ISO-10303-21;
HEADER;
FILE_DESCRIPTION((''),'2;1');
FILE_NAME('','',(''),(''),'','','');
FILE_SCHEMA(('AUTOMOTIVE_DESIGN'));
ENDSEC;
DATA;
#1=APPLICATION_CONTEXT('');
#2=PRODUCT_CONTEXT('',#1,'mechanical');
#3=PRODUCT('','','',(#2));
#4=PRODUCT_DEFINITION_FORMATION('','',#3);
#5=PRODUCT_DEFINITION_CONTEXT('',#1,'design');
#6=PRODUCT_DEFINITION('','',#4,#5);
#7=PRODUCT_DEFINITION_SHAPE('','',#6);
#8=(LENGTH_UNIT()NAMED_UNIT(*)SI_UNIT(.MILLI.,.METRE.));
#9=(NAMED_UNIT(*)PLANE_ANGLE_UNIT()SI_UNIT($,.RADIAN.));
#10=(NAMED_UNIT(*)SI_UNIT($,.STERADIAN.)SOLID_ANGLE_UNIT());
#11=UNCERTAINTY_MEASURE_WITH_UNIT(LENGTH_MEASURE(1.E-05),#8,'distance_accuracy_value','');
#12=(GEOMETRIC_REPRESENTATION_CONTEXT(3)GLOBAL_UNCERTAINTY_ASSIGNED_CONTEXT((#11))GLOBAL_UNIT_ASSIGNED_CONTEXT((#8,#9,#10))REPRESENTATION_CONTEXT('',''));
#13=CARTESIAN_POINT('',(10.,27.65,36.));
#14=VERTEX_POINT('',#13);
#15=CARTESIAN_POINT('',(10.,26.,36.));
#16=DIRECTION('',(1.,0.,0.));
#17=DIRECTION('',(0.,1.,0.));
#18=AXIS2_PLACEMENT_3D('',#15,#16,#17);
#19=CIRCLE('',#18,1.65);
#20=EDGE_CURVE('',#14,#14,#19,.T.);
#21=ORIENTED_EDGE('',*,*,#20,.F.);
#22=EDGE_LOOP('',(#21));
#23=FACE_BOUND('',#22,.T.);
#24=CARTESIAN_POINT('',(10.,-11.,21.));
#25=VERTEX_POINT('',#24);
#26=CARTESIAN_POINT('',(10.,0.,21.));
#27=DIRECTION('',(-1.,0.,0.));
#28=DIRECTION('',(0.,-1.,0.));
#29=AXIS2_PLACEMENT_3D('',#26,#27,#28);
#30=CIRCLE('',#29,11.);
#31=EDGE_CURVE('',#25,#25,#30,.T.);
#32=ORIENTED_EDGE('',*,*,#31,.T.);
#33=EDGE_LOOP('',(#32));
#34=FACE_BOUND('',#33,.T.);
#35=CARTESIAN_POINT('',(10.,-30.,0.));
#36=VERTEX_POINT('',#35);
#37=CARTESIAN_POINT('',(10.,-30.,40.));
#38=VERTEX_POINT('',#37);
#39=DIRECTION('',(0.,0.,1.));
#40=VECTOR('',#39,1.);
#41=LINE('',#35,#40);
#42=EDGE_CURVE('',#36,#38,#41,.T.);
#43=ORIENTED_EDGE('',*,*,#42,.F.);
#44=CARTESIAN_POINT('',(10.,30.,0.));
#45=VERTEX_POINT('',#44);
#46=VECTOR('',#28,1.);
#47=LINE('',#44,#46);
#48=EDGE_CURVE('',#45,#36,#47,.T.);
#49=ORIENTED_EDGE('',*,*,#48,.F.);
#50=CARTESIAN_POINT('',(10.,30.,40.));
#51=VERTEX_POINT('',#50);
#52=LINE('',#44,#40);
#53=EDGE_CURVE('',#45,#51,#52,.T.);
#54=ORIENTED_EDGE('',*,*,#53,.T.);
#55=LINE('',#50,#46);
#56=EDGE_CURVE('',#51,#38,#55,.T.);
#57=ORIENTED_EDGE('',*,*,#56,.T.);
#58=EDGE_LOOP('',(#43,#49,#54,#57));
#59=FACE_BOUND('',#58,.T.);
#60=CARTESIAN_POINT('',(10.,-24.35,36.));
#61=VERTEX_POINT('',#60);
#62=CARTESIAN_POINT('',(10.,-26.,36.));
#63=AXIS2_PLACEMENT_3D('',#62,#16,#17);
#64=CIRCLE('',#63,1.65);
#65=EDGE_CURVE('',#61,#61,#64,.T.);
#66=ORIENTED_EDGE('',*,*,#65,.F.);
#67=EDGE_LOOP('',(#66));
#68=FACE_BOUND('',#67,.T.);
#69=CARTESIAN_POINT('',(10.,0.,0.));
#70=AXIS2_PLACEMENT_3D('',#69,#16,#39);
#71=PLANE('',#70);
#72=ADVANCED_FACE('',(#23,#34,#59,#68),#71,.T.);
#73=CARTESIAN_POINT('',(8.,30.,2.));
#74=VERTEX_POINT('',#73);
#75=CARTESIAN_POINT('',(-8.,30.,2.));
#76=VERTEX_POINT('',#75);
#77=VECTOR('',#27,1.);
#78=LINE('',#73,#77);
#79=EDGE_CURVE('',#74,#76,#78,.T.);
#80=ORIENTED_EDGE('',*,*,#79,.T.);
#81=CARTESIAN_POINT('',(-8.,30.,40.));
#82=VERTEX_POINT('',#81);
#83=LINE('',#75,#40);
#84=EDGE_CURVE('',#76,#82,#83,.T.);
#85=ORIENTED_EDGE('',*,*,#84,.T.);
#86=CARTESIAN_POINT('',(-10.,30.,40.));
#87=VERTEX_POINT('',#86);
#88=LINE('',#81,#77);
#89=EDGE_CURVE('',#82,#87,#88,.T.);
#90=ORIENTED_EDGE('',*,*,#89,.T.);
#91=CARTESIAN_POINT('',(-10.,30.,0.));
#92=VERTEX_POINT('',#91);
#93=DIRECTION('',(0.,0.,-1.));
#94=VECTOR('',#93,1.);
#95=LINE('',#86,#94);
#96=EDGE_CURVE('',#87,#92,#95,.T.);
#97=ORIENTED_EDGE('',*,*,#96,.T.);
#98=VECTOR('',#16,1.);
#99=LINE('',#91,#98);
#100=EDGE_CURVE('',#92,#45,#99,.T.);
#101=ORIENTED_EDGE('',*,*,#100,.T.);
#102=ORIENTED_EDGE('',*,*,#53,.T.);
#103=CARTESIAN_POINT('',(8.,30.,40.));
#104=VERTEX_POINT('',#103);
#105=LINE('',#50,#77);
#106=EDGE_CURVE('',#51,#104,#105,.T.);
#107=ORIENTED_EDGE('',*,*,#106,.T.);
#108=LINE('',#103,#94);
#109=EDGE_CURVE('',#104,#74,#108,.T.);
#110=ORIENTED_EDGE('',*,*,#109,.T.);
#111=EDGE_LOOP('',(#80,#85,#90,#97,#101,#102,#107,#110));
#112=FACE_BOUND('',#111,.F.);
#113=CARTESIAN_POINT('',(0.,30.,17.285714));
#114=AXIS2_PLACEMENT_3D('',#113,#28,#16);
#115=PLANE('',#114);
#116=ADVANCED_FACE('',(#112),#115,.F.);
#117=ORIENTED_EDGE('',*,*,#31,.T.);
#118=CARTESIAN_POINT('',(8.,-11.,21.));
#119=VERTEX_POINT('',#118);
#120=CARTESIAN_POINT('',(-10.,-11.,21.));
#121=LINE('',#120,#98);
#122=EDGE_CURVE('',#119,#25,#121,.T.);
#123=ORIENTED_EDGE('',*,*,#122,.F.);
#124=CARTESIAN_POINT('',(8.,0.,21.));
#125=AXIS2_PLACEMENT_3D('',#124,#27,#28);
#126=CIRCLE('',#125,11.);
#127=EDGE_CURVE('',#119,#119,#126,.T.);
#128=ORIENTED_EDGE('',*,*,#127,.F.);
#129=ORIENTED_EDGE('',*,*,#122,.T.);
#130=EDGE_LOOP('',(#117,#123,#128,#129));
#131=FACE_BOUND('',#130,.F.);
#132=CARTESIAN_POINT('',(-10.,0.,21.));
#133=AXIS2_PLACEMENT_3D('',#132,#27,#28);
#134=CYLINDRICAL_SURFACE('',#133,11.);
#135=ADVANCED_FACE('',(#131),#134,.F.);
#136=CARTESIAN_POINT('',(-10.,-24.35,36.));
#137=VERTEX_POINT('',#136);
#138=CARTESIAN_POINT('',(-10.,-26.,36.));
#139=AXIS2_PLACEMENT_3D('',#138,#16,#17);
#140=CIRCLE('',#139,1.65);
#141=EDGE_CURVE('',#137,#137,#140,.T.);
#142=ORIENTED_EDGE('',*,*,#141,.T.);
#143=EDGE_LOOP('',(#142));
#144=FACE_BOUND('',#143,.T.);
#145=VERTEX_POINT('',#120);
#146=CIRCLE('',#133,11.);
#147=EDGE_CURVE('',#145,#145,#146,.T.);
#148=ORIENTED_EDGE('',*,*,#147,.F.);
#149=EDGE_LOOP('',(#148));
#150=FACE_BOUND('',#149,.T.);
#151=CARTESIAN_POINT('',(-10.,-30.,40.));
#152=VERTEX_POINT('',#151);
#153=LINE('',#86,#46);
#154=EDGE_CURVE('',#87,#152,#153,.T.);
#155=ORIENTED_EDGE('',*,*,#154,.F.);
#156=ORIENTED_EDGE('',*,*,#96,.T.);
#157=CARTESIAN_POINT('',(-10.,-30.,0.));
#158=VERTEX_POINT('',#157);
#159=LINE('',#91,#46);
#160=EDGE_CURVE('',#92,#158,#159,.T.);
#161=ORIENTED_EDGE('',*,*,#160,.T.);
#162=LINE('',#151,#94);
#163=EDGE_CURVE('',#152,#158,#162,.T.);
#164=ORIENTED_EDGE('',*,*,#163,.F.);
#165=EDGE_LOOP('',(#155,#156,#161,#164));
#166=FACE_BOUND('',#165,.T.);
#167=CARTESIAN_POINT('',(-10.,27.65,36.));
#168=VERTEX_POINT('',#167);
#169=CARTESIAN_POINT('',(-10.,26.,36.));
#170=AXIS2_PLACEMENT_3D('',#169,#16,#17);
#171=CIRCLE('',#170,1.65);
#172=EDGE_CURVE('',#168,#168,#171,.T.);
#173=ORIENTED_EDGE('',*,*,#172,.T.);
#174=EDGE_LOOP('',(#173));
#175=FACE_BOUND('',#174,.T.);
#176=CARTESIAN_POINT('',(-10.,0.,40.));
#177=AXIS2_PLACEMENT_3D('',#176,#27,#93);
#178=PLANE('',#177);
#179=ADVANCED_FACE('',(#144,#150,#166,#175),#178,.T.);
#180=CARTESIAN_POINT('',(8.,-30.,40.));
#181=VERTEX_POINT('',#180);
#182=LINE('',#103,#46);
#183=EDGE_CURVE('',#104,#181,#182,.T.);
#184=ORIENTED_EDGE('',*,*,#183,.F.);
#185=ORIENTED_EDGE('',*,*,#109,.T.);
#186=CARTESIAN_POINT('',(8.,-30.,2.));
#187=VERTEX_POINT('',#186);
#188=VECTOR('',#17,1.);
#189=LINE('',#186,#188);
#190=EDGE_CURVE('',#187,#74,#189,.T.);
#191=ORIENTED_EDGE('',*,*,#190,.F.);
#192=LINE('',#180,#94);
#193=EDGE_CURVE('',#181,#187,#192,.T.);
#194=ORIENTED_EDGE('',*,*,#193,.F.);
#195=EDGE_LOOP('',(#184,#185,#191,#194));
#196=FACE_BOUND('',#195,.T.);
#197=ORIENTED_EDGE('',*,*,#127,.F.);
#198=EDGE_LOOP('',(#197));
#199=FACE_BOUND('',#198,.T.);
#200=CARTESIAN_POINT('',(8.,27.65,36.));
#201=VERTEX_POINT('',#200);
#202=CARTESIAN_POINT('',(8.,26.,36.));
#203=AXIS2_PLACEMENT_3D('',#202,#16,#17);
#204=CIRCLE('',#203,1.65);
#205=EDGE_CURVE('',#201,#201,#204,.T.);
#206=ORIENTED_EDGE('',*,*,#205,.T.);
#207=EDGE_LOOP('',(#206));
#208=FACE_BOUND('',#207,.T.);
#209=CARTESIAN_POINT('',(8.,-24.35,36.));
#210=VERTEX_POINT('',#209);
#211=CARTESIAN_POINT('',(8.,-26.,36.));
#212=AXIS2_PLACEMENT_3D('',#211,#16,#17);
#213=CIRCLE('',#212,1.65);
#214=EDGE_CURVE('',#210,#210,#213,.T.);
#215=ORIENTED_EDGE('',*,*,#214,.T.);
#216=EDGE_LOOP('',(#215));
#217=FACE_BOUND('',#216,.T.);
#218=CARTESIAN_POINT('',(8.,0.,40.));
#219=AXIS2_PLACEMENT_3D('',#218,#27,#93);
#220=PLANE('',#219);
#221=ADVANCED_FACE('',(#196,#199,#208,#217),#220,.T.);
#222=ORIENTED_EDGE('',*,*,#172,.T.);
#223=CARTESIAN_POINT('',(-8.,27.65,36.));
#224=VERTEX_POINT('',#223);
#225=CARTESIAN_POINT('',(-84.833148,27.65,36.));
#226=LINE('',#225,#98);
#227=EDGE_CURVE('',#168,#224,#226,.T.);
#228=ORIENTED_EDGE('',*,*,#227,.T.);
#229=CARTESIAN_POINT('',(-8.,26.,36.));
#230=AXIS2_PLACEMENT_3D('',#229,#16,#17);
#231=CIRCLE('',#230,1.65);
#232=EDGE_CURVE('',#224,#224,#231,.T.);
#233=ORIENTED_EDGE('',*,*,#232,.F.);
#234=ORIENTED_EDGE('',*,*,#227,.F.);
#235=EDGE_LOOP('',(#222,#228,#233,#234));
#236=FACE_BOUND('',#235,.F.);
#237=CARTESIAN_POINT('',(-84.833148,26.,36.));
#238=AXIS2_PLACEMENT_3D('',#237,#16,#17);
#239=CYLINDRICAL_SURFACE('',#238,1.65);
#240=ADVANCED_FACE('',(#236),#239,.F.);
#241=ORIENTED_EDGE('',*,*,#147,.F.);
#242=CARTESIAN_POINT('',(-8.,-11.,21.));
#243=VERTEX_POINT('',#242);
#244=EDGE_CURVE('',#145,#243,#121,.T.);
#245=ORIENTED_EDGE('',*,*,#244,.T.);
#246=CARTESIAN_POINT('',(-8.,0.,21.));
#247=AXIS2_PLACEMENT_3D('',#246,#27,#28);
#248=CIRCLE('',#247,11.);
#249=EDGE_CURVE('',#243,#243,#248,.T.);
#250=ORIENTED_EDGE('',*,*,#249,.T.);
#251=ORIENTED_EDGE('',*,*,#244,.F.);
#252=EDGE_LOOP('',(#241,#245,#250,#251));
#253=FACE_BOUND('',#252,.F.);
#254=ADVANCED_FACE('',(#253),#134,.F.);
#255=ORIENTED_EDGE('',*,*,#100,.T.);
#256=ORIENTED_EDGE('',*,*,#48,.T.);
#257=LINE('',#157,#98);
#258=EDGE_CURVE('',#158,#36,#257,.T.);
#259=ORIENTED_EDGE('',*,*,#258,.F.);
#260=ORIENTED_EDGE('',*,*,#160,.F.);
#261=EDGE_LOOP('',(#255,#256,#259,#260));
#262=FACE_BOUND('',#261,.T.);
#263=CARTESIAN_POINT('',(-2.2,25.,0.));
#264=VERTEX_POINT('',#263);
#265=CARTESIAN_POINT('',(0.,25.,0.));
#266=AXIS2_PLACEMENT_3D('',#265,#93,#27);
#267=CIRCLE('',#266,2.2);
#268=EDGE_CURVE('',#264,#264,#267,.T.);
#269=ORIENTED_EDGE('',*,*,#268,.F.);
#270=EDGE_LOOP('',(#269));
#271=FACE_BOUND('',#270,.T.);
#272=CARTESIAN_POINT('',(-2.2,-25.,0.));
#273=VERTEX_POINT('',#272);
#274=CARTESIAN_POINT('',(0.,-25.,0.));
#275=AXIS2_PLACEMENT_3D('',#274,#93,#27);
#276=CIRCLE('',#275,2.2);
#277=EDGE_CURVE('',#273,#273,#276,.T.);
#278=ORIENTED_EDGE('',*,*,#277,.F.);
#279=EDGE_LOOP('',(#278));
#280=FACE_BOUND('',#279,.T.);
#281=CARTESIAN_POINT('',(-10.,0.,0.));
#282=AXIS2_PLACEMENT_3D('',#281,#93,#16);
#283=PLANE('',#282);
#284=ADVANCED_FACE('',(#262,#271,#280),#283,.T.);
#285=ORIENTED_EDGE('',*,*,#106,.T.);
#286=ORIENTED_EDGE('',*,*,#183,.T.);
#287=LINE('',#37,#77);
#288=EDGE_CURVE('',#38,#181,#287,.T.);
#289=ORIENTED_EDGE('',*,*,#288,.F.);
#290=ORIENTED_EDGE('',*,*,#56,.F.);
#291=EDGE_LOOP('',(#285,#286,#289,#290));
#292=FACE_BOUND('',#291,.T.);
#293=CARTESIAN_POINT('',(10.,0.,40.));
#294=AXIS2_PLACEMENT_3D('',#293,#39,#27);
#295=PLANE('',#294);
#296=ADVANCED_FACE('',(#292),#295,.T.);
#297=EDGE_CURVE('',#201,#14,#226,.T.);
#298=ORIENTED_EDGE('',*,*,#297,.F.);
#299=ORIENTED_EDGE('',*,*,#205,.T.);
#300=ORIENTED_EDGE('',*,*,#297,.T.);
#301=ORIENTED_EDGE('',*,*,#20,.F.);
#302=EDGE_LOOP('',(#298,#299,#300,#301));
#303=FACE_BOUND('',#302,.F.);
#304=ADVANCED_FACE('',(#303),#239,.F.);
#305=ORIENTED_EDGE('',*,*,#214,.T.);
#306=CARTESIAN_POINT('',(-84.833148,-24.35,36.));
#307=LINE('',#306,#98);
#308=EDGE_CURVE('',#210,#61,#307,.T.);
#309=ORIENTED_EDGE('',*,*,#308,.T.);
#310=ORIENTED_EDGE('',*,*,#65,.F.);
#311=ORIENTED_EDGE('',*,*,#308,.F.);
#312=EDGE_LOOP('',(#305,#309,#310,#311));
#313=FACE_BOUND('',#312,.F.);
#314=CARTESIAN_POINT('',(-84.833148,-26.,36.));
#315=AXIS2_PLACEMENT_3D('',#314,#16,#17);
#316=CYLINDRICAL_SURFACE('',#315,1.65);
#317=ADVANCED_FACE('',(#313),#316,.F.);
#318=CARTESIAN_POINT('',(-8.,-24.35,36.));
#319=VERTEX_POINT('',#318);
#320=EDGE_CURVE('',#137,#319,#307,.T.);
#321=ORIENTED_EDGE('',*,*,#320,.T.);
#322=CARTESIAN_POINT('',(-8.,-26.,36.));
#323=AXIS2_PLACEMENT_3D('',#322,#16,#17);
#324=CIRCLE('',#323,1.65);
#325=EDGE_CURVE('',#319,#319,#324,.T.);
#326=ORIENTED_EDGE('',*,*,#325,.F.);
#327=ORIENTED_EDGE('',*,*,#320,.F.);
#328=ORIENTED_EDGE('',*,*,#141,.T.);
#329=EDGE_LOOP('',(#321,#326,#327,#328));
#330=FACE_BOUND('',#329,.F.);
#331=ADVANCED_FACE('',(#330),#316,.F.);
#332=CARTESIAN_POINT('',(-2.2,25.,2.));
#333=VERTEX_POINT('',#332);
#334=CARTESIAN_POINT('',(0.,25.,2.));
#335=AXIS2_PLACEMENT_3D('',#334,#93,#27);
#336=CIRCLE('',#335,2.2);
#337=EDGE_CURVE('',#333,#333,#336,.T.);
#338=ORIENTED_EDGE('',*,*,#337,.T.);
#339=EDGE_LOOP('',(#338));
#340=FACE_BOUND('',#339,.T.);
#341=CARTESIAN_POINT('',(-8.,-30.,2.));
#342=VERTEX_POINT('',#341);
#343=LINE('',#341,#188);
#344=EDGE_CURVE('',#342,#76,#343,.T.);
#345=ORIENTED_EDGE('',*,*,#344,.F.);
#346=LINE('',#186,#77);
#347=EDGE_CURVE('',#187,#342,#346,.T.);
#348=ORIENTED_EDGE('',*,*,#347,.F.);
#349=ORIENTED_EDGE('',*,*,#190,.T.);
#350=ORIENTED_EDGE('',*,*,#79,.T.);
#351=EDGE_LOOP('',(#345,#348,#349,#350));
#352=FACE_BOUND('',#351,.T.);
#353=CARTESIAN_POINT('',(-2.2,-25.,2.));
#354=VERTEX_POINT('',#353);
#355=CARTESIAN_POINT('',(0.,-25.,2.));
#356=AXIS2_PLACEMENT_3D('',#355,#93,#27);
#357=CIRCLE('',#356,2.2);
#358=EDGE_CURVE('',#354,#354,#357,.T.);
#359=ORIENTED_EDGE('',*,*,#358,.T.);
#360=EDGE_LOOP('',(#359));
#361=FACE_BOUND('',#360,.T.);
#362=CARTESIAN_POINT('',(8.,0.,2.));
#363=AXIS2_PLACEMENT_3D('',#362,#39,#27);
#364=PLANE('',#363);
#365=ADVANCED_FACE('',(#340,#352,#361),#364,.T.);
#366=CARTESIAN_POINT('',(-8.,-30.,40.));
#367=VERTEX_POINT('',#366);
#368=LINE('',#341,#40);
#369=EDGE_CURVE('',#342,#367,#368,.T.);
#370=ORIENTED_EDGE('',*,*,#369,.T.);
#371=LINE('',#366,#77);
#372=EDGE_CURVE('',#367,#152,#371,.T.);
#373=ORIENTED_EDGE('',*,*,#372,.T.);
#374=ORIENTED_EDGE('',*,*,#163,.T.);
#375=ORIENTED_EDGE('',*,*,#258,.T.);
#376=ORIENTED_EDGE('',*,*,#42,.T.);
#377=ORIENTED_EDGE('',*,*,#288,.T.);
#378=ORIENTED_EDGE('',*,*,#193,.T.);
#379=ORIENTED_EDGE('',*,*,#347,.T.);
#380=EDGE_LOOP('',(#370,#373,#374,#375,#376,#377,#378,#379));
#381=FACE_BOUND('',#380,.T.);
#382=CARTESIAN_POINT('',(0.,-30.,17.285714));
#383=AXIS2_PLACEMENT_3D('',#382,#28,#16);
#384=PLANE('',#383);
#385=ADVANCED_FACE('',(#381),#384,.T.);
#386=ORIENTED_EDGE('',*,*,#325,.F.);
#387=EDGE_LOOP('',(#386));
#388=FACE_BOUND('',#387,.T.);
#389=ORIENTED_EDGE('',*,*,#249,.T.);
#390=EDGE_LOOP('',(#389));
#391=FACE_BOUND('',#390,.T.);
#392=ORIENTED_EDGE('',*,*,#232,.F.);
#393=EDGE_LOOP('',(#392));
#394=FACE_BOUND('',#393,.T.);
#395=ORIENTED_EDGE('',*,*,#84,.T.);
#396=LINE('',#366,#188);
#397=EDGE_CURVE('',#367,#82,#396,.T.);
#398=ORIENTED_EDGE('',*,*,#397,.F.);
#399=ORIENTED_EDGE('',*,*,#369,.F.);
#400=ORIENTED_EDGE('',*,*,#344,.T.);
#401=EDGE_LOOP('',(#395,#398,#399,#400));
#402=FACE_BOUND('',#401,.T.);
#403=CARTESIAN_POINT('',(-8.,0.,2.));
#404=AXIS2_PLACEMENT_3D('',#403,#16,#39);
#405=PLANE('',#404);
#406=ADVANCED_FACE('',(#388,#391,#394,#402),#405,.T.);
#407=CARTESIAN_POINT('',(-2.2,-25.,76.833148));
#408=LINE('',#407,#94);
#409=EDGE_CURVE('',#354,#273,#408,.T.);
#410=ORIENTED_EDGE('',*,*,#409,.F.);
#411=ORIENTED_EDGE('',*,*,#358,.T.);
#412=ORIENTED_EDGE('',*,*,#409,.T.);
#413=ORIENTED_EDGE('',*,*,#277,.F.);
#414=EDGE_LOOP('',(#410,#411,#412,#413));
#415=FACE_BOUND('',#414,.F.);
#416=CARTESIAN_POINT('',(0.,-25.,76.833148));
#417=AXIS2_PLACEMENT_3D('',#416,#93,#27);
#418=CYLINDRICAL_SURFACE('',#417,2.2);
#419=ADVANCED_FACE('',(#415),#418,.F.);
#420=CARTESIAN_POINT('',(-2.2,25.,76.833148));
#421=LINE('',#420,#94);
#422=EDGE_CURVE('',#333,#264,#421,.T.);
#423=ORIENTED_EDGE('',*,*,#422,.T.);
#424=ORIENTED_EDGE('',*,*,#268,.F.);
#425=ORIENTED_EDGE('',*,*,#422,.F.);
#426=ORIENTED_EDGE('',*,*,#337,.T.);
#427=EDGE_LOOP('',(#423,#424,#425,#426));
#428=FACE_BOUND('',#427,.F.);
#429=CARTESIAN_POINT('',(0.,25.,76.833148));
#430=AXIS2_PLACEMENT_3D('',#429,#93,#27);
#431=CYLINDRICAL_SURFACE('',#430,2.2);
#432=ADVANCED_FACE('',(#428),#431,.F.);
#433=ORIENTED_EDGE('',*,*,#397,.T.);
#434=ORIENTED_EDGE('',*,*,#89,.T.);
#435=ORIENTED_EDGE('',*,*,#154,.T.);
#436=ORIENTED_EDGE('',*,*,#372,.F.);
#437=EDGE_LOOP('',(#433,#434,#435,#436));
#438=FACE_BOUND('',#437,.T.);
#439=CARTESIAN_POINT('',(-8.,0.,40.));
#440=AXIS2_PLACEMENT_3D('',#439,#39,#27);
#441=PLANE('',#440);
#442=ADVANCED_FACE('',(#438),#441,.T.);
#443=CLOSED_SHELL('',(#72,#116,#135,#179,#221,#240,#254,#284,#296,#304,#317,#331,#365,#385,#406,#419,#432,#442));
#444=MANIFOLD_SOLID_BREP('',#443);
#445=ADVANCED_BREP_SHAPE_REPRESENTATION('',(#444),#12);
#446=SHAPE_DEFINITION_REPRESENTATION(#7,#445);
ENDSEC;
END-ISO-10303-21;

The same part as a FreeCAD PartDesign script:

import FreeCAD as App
import Part
import Sketcher
Q = App.Units.Quantity


def add_polygon(sketch, points):
    """Adds a closed chain of lines whose ends are joined by coincident constraints."""
    first, n = sketch.GeometryCount, len(points)
    for a, b in zip(points, points[1:] + points[:1]):
        sketch.addGeometry(Part.LineSegment(App.Vector(*a, 0), App.Vector(*b, 0)), False)
    for i in range(n):
        sketch.addConstraint(Sketcher.Constraint("Coincident", first + i, 2, first + (i + 1) % n, 1))

doc = App.newDocument("Part")
params = doc.addObject("Spreadsheet::Sheet", "Params")
for row, (alias, value) in enumerate([
    ("sketch1_width", "2 mm"),
    ("sketch1_width2", "20 mm"),
    ("sketch1_height", "40 mm"),
    ("sketch1_height2", "38 mm"),
    ("pad1_length", "60 mm"),
    ("sketch2_diameter", "22 mm"),
    ("sketch3_diameter", "4.4 mm"),
    ("hole_diameter", "4.4 mm"),
    ("sketch4_diameter", "3.3 mm"),
    ("hole2_diameter", "3.3 mm"),
], start=1):
    params.set(f"A{row}", alias)
    params.set(f"B{row}", "=" + value)
    params.setAlias(f"B{row}", alias)

body = doc.addObject("PartDesign::Body", "Body")

# Sketch on XZ plane
sketch1 = doc.addObject("Sketcher::SketchObject", "Sketch")
body.addObject(sketch1)
sketch1.AttachmentSupport = (doc.XZ_Plane, [""])
sketch1.MapMode = "FlatFace"
add_polygon(sketch1, [(-8, 40), (-10, 40), (-10, 0), (10, 0), (10, 40), (8, 40), (8, 2), (-8, 2)])  # lines 0-7
sketch1.addConstraint(Sketcher.Constraint("Horizontal", 0))
sketch1.addConstraint(Sketcher.Constraint("Vertical", 1))
sketch1.addConstraint(Sketcher.Constraint("Horizontal", 2))
sketch1.addConstraint(Sketcher.Constraint("Vertical", 3))
sketch1.addConstraint(Sketcher.Constraint("Horizontal", 4))
sketch1.addConstraint(Sketcher.Constraint("Vertical", 5))
sketch1.addConstraint(Sketcher.Constraint("Horizontal", 6))
sketch1.addConstraint(Sketcher.Constraint("Vertical", 7))
sketch1.addConstraint(Sketcher.Constraint("Symmetric", 1, 2, 2, 2, -1, 1))
sketch1.addConstraint(Sketcher.Constraint("Symmetric", 4, 2, 7, 2, -2))
sketch1.addConstraint(Sketcher.Constraint("DistanceX", 0, 2, 0, 1, Q("2 mm")))
sketch1.addConstraint(Sketcher.Constraint("DistanceX", 2, 1, 2, 2, Q("20 mm")))
sketch1.addConstraint(Sketcher.Constraint("DistanceY", 1, 2, 1, 1, Q("40 mm")))
sketch1.addConstraint(Sketcher.Constraint("DistanceY", 5, 2, 5, 1, Q("38 mm")))
sketch1.setExpression("Constraints[18]", "Params.sketch1_width")
sketch1.setExpression("Constraints[19]", "Params.sketch1_width2")
sketch1.setExpression("Constraints[20]", "Params.sketch1_height")
sketch1.setExpression("Constraints[21]", "Params.sketch1_height2")
pad1 = doc.addObject("PartDesign::Pad", "Pad")
body.addObject(pad1)
pad1.Profile = sketch1
pad1.setExpression("Length", "Params.pad1_length")
pad1.Midplane = True

# Sketch on YZ plane
sketch2 = doc.addObject("Sketcher::SketchObject", "Sketch001")
body.addObject(sketch2)
sketch2.AttachmentSupport = (doc.YZ_Plane, [""])
sketch2.MapMode = "FlatFace"
sketch2.AttachmentOffset = App.Placement(App.Vector(0, 0, -10), App.Rotation())
sketch2.addGeometry(Part.Circle(App.Vector(0, 21, 0), App.Vector(0, 0, 1), 11), False)
sketch2.addConstraint(Sketcher.Constraint("PointOnObject", 0, 3, -2))
sketch2.addConstraint(Sketcher.Constraint("Diameter", 0, Q("22 mm")))
sketch2.addConstraint(Sketcher.Constraint("DistanceY", -1, 1, 0, 3, Q("21 mm")))
sketch2.setExpression("Constraints[1]", "Params.sketch2_diameter")
pocket1 = doc.addObject("PartDesign::Pocket", "Pocket")
body.addObject(pocket1)
pocket1.Profile = sketch2
pocket1.Type = "ThroughAll"
pocket1.Reversed = True

# Sketch on XY plane
sketch3 = doc.addObject("Sketcher::SketchObject", "Sketch002")
body.addObject(sketch3)
sketch3.AttachmentSupport = (doc.XY_Plane, [""])
sketch3.MapMode = "FlatFace"
sketch3.AttachmentOffset = App.Placement(App.Vector(0, 0, 2), App.Rotation())
sketch3.addGeometry(Part.Circle(App.Vector(0, 25, 0), App.Vector(0, 0, 1), 2.2), False)
sketch3.addGeometry(Part.Circle(App.Vector(0, -25, 0), App.Vector(0, 0, 1), 2.2), False)
sketch3.addConstraint(Sketcher.Constraint("Equal", 0, 1))
sketch3.addConstraint(Sketcher.Constraint("Symmetric", 0, 3, 1, 3, -1, 1))
sketch3.addConstraint(Sketcher.Constraint("PointOnObject", 0, 3, -2))
sketch3.addConstraint(Sketcher.Constraint("Diameter", 0, Q("4.4 mm")))
sketch3.addConstraint(Sketcher.Constraint("DistanceY", -1, 1, 0, 3, Q("25 mm")))
sketch3.setExpression("Constraints[3]", "Params.sketch3_diameter")
doc.recompute()
hole = doc.addObject("PartDesign::Hole", "Hole")
body.addObject(hole)
hole.Profile = sketch3
hole.ThreadType = "None"
hole.setExpression("Diameter", "Params.hole_diameter")
hole.DepthType = "ThroughAll"

# Sketch on YZ plane
sketch4 = doc.addObject("Sketcher::SketchObject", "Sketch003")
body.addObject(sketch4)
sketch4.AttachmentSupport = (doc.YZ_Plane, [""])
sketch4.MapMode = "FlatFace"
sketch4.AttachmentOffset = App.Placement(App.Vector(0, 0, -10), App.Rotation())
sketch4.addGeometry(Part.Circle(App.Vector(26, 36, 0), App.Vector(0, 0, 1), 1.6), False)
sketch4.addGeometry(Part.Circle(App.Vector(-26, 36, 0), App.Vector(0, 0, 1), 1.6), False)
sketch4.addConstraint(Sketcher.Constraint("Equal", 0, 1))
sketch4.addConstraint(Sketcher.Constraint("Symmetric", 0, 3, 1, 3, -2))
sketch4.addConstraint(Sketcher.Constraint("Diameter", 0, Q("3.3 mm")))
sketch4.addConstraint(Sketcher.Constraint("DistanceX", -1, 1, 0, 3, Q("26 mm")))
sketch4.addConstraint(Sketcher.Constraint("DistanceY", -1, 1, 0, 3, Q("36 mm")))
sketch4.setExpression("Constraints[2]", "Params.sketch4_diameter")
doc.recompute()
hole2 = doc.addObject("PartDesign::Hole", "Hole001")
body.addObject(hole2)
hole2.Profile = sketch4
hole2.ThreadType = "None"
hole2.setExpression("Diameter", "Params.hole2_diameter")
hole2.DepthType = "ThroughAll"
hole2.Reversed = True

doc.recompute()
